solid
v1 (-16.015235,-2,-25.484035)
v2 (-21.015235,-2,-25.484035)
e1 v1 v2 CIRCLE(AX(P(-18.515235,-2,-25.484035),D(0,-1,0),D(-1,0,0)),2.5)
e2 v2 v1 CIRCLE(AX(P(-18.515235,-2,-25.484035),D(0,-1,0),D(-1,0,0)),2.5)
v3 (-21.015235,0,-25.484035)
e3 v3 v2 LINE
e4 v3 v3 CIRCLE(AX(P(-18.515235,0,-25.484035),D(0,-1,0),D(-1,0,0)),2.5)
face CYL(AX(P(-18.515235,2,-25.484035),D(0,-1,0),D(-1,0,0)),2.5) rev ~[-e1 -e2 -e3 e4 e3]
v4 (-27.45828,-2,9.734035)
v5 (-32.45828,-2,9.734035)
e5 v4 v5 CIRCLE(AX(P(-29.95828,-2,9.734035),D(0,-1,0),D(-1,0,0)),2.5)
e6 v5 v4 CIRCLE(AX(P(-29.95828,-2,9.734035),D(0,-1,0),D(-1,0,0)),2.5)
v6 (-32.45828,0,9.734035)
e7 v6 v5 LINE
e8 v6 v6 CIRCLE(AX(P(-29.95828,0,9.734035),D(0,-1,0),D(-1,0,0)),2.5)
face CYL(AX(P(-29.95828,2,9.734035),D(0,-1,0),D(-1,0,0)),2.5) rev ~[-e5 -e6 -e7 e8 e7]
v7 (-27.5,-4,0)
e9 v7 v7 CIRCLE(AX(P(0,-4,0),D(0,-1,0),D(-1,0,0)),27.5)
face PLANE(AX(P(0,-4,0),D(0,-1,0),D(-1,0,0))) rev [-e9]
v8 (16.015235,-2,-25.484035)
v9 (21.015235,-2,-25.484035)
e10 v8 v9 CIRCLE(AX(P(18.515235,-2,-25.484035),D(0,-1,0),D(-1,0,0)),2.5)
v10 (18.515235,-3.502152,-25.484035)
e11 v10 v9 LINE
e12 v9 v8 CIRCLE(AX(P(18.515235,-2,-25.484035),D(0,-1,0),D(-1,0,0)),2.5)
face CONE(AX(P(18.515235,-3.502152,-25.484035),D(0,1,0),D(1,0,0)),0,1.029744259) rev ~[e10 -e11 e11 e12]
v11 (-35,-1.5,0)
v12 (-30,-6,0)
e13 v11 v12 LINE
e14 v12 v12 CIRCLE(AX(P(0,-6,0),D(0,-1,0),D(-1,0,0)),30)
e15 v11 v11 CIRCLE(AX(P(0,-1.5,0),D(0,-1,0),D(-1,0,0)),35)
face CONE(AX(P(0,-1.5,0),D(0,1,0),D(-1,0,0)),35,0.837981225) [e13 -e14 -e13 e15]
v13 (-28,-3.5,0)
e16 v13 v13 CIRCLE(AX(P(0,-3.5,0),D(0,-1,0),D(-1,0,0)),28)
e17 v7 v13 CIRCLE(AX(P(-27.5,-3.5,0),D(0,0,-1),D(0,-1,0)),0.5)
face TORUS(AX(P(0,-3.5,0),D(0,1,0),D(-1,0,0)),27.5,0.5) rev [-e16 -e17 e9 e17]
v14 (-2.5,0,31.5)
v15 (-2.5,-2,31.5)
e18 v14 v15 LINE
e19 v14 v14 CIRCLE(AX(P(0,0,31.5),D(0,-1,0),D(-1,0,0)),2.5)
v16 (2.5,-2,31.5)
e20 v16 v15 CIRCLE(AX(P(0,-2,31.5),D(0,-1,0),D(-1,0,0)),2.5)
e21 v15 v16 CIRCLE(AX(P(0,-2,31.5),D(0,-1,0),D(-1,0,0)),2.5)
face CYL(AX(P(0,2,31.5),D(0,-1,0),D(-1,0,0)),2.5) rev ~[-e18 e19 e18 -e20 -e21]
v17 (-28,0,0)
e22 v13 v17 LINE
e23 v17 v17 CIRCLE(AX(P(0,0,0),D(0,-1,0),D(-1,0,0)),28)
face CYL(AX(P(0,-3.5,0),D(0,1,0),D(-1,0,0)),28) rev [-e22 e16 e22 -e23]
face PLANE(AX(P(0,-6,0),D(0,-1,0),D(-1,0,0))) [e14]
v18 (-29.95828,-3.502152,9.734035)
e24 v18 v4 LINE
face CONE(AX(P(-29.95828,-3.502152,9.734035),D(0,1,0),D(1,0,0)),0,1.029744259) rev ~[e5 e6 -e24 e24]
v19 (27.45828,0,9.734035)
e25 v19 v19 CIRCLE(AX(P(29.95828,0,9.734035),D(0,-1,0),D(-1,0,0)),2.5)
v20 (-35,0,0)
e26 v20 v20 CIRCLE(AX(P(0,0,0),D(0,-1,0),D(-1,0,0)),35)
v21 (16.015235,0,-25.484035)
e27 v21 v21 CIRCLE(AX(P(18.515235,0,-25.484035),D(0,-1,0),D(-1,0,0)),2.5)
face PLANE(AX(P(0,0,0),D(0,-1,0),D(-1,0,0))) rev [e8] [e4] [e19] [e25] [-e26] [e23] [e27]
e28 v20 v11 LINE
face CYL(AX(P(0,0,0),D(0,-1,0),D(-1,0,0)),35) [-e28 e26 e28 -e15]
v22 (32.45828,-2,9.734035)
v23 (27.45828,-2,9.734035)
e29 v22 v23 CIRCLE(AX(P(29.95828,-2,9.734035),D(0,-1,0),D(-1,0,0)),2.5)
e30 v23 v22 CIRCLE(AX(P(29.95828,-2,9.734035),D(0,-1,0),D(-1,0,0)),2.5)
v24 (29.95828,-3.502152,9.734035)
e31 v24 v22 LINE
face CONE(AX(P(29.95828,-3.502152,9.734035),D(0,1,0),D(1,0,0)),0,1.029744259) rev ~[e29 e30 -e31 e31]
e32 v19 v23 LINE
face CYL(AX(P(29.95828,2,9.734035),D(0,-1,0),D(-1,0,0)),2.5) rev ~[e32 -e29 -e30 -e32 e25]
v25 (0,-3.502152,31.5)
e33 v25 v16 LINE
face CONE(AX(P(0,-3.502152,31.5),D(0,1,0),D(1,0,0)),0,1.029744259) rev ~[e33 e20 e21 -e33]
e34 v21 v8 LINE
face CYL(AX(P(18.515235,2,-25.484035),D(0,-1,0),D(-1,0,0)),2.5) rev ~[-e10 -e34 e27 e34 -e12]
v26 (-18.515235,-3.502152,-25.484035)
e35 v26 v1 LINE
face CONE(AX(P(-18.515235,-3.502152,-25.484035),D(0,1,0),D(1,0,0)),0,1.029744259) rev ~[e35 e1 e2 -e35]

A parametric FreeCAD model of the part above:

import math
import FreeCAD as App
import Part
import Sketcher

doc = App.newDocument("Part")
body = doc.addObject("PartDesign::Body", "Body")

sketch1 = body.newObject("Sketcher::SketchObject", "Sketch")
sketch1.AttachmentSupport = (doc.getObject("XY_Plane"), [""])
sketch1.MapMode = "FlatFace"
sketch1.addGeometry([
    Part.LineSegment(App.Vector(-28, 0, 0), App.Vector(-35, 0, 0)),
    Part.LineSegment(App.Vector(-35, 0, 0), App.Vector(-35, -1.5, 0)),
    Part.LineSegment(App.Vector(-35, -1.5, 0), App.Vector(-30, -6, 0)),
    Part.LineSegment(App.Vector(-30, -6, 0), App.Vector(0, -6, 0)),
    Part.LineSegment(App.Vector(0, -6, 0), App.Vector(0, -4, 0)),
    Part.LineSegment(App.Vector(0, -4, 0), App.Vector(-27.5, -4, 0)),
    Part.ArcOfCircle(Part.Circle(App.Vector(-27.5, -3.5, 0), App.Vector(0, 0, 1), 0.5), math.radians(180), math.radians(270)),
    Part.LineSegment(App.Vector(-28, -3.5, 0), App.Vector(-28, 0, 0)),
], False)
sketch1.addConstraint([
    Sketcher.Constraint("Coincident", 0, 2, 1, 1),
    Sketcher.Constraint("Coincident", 1, 2, 2, 1),
    Sketcher.Constraint("Coincident", 2, 2, 3, 1),
    Sketcher.Constraint("Coincident", 3, 2, 4, 1),
    Sketcher.Constraint("Coincident", 4, 2, 5, 1),
    Sketcher.Constraint("Tangent", 5, 2, 6, 2),
    Sketcher.Constraint("Tangent", 6, 1, 7, 1),
    Sketcher.Constraint("Coincident", 7, 2, 0, 1),
    Sketcher.Constraint("Horizontal", 0),
    Sketcher.Constraint("Vertical", 1),
    Sketcher.Constraint("Horizontal", 3),
    Sketcher.Constraint("Vertical", 4),
    Sketcher.Constraint("Horizontal", 5),
    Sketcher.Constraint("Vertical", 7),
    Sketcher.Constraint("PointOnObject", 0, 2, -1),
    Sketcher.Constraint("PointOnObject", 3, 2, -2),
    Sketcher.Constraint("Radius", 6, 0.5),
    Sketcher.Constraint("DistanceX", 0, 2, 0, 1, 7.0),
    Sketcher.Constraint("DistanceX", 3, 1, 3, 2, 30.0),
    Sketcher.Constraint("DistanceY", 4, 1, 4, 2, 2.0),
    Sketcher.Constraint("DistanceX", 5, 2, 5, 1, 27.5),
    Sketcher.Constraint("DistanceY", 1, 2, 1, 1, 1.5),
    Sketcher.Constraint("DistanceY", 7, 1, 7, 2, 3.5),
])
revolution = body.newObject("PartDesign::Revolution", "Revolution")
revolution.Profile = sketch1
revolution.ReferenceAxis = (sketch1, ["V_Axis"])
revolution.Angle = 360

sketch2 = body.newObject("Sketcher::SketchObject", "Sketch001")
sketch2.AttachmentSupport = (doc.getObject("XZ_Plane"), [""])
sketch2.MapMode = "FlatFace"
sketch2.addGeometry([
    Part.Circle(App.Vector(0, 31.5, 0), App.Vector(0, 0, 1), 2.5),
    Part.Circle(App.Vector(30, 9.7, 0), App.Vector(0, 0, 1), 2.5),
    Part.Circle(App.Vector(18.5, -25.5, 0), App.Vector(0, 0, 1), 2.5),
    Part.Circle(App.Vector(-18.5, -25.5, 0), App.Vector(0, 0, 1), 2.5),
    Part.Circle(App.Vector(-30, 9.7, 0), App.Vector(0, 0, 1), 2.5),
], False)
sketch2.addConstraint([
    Sketcher.Constraint("Equal", 0, 1),
    Sketcher.Constraint("Equal", 1, 2),
    Sketcher.Constraint("Equal", 2, 3),
    Sketcher.Constraint("Equal", 3, 4),
    Sketcher.Constraint("Symmetric", 2, 3, 3, 3, -2),
    Sketcher.Constraint("Symmetric", 1, 3, 4, 3, -2),
    Sketcher.Constraint("PointOnObject", 0, 3, -2),
    Sketcher.Constraint("Diameter", 0, 5.0),
    Sketcher.Constraint("DistanceY", -1, 1, 0, 3, 31.5),
    Sketcher.Constraint("DistanceX", -1, 1, 1, 3, 29.95828),
    Sketcher.Constraint("DistanceY", 2, 3, 1, 3, 35.218071),
    Sketcher.Constraint("DistanceX", 3, 3, 2, 3, 37.030471),
    Sketcher.Constraint("DistanceY", -1, 1, 1, 3, 9.734035),
])
doc.recompute()
hole = body.newObject("PartDesign::Hole", "Hole")
hole.Profile = sketch2
hole.ThreadType = "None"
hole.Diameter = 5
hole.DepthType = "Dimension"
hole.Depth = 2
hole.DrillPoint = "Angled"
hole.DrillPointAngle = 118
hole.Reversed = True

doc.recompute()
